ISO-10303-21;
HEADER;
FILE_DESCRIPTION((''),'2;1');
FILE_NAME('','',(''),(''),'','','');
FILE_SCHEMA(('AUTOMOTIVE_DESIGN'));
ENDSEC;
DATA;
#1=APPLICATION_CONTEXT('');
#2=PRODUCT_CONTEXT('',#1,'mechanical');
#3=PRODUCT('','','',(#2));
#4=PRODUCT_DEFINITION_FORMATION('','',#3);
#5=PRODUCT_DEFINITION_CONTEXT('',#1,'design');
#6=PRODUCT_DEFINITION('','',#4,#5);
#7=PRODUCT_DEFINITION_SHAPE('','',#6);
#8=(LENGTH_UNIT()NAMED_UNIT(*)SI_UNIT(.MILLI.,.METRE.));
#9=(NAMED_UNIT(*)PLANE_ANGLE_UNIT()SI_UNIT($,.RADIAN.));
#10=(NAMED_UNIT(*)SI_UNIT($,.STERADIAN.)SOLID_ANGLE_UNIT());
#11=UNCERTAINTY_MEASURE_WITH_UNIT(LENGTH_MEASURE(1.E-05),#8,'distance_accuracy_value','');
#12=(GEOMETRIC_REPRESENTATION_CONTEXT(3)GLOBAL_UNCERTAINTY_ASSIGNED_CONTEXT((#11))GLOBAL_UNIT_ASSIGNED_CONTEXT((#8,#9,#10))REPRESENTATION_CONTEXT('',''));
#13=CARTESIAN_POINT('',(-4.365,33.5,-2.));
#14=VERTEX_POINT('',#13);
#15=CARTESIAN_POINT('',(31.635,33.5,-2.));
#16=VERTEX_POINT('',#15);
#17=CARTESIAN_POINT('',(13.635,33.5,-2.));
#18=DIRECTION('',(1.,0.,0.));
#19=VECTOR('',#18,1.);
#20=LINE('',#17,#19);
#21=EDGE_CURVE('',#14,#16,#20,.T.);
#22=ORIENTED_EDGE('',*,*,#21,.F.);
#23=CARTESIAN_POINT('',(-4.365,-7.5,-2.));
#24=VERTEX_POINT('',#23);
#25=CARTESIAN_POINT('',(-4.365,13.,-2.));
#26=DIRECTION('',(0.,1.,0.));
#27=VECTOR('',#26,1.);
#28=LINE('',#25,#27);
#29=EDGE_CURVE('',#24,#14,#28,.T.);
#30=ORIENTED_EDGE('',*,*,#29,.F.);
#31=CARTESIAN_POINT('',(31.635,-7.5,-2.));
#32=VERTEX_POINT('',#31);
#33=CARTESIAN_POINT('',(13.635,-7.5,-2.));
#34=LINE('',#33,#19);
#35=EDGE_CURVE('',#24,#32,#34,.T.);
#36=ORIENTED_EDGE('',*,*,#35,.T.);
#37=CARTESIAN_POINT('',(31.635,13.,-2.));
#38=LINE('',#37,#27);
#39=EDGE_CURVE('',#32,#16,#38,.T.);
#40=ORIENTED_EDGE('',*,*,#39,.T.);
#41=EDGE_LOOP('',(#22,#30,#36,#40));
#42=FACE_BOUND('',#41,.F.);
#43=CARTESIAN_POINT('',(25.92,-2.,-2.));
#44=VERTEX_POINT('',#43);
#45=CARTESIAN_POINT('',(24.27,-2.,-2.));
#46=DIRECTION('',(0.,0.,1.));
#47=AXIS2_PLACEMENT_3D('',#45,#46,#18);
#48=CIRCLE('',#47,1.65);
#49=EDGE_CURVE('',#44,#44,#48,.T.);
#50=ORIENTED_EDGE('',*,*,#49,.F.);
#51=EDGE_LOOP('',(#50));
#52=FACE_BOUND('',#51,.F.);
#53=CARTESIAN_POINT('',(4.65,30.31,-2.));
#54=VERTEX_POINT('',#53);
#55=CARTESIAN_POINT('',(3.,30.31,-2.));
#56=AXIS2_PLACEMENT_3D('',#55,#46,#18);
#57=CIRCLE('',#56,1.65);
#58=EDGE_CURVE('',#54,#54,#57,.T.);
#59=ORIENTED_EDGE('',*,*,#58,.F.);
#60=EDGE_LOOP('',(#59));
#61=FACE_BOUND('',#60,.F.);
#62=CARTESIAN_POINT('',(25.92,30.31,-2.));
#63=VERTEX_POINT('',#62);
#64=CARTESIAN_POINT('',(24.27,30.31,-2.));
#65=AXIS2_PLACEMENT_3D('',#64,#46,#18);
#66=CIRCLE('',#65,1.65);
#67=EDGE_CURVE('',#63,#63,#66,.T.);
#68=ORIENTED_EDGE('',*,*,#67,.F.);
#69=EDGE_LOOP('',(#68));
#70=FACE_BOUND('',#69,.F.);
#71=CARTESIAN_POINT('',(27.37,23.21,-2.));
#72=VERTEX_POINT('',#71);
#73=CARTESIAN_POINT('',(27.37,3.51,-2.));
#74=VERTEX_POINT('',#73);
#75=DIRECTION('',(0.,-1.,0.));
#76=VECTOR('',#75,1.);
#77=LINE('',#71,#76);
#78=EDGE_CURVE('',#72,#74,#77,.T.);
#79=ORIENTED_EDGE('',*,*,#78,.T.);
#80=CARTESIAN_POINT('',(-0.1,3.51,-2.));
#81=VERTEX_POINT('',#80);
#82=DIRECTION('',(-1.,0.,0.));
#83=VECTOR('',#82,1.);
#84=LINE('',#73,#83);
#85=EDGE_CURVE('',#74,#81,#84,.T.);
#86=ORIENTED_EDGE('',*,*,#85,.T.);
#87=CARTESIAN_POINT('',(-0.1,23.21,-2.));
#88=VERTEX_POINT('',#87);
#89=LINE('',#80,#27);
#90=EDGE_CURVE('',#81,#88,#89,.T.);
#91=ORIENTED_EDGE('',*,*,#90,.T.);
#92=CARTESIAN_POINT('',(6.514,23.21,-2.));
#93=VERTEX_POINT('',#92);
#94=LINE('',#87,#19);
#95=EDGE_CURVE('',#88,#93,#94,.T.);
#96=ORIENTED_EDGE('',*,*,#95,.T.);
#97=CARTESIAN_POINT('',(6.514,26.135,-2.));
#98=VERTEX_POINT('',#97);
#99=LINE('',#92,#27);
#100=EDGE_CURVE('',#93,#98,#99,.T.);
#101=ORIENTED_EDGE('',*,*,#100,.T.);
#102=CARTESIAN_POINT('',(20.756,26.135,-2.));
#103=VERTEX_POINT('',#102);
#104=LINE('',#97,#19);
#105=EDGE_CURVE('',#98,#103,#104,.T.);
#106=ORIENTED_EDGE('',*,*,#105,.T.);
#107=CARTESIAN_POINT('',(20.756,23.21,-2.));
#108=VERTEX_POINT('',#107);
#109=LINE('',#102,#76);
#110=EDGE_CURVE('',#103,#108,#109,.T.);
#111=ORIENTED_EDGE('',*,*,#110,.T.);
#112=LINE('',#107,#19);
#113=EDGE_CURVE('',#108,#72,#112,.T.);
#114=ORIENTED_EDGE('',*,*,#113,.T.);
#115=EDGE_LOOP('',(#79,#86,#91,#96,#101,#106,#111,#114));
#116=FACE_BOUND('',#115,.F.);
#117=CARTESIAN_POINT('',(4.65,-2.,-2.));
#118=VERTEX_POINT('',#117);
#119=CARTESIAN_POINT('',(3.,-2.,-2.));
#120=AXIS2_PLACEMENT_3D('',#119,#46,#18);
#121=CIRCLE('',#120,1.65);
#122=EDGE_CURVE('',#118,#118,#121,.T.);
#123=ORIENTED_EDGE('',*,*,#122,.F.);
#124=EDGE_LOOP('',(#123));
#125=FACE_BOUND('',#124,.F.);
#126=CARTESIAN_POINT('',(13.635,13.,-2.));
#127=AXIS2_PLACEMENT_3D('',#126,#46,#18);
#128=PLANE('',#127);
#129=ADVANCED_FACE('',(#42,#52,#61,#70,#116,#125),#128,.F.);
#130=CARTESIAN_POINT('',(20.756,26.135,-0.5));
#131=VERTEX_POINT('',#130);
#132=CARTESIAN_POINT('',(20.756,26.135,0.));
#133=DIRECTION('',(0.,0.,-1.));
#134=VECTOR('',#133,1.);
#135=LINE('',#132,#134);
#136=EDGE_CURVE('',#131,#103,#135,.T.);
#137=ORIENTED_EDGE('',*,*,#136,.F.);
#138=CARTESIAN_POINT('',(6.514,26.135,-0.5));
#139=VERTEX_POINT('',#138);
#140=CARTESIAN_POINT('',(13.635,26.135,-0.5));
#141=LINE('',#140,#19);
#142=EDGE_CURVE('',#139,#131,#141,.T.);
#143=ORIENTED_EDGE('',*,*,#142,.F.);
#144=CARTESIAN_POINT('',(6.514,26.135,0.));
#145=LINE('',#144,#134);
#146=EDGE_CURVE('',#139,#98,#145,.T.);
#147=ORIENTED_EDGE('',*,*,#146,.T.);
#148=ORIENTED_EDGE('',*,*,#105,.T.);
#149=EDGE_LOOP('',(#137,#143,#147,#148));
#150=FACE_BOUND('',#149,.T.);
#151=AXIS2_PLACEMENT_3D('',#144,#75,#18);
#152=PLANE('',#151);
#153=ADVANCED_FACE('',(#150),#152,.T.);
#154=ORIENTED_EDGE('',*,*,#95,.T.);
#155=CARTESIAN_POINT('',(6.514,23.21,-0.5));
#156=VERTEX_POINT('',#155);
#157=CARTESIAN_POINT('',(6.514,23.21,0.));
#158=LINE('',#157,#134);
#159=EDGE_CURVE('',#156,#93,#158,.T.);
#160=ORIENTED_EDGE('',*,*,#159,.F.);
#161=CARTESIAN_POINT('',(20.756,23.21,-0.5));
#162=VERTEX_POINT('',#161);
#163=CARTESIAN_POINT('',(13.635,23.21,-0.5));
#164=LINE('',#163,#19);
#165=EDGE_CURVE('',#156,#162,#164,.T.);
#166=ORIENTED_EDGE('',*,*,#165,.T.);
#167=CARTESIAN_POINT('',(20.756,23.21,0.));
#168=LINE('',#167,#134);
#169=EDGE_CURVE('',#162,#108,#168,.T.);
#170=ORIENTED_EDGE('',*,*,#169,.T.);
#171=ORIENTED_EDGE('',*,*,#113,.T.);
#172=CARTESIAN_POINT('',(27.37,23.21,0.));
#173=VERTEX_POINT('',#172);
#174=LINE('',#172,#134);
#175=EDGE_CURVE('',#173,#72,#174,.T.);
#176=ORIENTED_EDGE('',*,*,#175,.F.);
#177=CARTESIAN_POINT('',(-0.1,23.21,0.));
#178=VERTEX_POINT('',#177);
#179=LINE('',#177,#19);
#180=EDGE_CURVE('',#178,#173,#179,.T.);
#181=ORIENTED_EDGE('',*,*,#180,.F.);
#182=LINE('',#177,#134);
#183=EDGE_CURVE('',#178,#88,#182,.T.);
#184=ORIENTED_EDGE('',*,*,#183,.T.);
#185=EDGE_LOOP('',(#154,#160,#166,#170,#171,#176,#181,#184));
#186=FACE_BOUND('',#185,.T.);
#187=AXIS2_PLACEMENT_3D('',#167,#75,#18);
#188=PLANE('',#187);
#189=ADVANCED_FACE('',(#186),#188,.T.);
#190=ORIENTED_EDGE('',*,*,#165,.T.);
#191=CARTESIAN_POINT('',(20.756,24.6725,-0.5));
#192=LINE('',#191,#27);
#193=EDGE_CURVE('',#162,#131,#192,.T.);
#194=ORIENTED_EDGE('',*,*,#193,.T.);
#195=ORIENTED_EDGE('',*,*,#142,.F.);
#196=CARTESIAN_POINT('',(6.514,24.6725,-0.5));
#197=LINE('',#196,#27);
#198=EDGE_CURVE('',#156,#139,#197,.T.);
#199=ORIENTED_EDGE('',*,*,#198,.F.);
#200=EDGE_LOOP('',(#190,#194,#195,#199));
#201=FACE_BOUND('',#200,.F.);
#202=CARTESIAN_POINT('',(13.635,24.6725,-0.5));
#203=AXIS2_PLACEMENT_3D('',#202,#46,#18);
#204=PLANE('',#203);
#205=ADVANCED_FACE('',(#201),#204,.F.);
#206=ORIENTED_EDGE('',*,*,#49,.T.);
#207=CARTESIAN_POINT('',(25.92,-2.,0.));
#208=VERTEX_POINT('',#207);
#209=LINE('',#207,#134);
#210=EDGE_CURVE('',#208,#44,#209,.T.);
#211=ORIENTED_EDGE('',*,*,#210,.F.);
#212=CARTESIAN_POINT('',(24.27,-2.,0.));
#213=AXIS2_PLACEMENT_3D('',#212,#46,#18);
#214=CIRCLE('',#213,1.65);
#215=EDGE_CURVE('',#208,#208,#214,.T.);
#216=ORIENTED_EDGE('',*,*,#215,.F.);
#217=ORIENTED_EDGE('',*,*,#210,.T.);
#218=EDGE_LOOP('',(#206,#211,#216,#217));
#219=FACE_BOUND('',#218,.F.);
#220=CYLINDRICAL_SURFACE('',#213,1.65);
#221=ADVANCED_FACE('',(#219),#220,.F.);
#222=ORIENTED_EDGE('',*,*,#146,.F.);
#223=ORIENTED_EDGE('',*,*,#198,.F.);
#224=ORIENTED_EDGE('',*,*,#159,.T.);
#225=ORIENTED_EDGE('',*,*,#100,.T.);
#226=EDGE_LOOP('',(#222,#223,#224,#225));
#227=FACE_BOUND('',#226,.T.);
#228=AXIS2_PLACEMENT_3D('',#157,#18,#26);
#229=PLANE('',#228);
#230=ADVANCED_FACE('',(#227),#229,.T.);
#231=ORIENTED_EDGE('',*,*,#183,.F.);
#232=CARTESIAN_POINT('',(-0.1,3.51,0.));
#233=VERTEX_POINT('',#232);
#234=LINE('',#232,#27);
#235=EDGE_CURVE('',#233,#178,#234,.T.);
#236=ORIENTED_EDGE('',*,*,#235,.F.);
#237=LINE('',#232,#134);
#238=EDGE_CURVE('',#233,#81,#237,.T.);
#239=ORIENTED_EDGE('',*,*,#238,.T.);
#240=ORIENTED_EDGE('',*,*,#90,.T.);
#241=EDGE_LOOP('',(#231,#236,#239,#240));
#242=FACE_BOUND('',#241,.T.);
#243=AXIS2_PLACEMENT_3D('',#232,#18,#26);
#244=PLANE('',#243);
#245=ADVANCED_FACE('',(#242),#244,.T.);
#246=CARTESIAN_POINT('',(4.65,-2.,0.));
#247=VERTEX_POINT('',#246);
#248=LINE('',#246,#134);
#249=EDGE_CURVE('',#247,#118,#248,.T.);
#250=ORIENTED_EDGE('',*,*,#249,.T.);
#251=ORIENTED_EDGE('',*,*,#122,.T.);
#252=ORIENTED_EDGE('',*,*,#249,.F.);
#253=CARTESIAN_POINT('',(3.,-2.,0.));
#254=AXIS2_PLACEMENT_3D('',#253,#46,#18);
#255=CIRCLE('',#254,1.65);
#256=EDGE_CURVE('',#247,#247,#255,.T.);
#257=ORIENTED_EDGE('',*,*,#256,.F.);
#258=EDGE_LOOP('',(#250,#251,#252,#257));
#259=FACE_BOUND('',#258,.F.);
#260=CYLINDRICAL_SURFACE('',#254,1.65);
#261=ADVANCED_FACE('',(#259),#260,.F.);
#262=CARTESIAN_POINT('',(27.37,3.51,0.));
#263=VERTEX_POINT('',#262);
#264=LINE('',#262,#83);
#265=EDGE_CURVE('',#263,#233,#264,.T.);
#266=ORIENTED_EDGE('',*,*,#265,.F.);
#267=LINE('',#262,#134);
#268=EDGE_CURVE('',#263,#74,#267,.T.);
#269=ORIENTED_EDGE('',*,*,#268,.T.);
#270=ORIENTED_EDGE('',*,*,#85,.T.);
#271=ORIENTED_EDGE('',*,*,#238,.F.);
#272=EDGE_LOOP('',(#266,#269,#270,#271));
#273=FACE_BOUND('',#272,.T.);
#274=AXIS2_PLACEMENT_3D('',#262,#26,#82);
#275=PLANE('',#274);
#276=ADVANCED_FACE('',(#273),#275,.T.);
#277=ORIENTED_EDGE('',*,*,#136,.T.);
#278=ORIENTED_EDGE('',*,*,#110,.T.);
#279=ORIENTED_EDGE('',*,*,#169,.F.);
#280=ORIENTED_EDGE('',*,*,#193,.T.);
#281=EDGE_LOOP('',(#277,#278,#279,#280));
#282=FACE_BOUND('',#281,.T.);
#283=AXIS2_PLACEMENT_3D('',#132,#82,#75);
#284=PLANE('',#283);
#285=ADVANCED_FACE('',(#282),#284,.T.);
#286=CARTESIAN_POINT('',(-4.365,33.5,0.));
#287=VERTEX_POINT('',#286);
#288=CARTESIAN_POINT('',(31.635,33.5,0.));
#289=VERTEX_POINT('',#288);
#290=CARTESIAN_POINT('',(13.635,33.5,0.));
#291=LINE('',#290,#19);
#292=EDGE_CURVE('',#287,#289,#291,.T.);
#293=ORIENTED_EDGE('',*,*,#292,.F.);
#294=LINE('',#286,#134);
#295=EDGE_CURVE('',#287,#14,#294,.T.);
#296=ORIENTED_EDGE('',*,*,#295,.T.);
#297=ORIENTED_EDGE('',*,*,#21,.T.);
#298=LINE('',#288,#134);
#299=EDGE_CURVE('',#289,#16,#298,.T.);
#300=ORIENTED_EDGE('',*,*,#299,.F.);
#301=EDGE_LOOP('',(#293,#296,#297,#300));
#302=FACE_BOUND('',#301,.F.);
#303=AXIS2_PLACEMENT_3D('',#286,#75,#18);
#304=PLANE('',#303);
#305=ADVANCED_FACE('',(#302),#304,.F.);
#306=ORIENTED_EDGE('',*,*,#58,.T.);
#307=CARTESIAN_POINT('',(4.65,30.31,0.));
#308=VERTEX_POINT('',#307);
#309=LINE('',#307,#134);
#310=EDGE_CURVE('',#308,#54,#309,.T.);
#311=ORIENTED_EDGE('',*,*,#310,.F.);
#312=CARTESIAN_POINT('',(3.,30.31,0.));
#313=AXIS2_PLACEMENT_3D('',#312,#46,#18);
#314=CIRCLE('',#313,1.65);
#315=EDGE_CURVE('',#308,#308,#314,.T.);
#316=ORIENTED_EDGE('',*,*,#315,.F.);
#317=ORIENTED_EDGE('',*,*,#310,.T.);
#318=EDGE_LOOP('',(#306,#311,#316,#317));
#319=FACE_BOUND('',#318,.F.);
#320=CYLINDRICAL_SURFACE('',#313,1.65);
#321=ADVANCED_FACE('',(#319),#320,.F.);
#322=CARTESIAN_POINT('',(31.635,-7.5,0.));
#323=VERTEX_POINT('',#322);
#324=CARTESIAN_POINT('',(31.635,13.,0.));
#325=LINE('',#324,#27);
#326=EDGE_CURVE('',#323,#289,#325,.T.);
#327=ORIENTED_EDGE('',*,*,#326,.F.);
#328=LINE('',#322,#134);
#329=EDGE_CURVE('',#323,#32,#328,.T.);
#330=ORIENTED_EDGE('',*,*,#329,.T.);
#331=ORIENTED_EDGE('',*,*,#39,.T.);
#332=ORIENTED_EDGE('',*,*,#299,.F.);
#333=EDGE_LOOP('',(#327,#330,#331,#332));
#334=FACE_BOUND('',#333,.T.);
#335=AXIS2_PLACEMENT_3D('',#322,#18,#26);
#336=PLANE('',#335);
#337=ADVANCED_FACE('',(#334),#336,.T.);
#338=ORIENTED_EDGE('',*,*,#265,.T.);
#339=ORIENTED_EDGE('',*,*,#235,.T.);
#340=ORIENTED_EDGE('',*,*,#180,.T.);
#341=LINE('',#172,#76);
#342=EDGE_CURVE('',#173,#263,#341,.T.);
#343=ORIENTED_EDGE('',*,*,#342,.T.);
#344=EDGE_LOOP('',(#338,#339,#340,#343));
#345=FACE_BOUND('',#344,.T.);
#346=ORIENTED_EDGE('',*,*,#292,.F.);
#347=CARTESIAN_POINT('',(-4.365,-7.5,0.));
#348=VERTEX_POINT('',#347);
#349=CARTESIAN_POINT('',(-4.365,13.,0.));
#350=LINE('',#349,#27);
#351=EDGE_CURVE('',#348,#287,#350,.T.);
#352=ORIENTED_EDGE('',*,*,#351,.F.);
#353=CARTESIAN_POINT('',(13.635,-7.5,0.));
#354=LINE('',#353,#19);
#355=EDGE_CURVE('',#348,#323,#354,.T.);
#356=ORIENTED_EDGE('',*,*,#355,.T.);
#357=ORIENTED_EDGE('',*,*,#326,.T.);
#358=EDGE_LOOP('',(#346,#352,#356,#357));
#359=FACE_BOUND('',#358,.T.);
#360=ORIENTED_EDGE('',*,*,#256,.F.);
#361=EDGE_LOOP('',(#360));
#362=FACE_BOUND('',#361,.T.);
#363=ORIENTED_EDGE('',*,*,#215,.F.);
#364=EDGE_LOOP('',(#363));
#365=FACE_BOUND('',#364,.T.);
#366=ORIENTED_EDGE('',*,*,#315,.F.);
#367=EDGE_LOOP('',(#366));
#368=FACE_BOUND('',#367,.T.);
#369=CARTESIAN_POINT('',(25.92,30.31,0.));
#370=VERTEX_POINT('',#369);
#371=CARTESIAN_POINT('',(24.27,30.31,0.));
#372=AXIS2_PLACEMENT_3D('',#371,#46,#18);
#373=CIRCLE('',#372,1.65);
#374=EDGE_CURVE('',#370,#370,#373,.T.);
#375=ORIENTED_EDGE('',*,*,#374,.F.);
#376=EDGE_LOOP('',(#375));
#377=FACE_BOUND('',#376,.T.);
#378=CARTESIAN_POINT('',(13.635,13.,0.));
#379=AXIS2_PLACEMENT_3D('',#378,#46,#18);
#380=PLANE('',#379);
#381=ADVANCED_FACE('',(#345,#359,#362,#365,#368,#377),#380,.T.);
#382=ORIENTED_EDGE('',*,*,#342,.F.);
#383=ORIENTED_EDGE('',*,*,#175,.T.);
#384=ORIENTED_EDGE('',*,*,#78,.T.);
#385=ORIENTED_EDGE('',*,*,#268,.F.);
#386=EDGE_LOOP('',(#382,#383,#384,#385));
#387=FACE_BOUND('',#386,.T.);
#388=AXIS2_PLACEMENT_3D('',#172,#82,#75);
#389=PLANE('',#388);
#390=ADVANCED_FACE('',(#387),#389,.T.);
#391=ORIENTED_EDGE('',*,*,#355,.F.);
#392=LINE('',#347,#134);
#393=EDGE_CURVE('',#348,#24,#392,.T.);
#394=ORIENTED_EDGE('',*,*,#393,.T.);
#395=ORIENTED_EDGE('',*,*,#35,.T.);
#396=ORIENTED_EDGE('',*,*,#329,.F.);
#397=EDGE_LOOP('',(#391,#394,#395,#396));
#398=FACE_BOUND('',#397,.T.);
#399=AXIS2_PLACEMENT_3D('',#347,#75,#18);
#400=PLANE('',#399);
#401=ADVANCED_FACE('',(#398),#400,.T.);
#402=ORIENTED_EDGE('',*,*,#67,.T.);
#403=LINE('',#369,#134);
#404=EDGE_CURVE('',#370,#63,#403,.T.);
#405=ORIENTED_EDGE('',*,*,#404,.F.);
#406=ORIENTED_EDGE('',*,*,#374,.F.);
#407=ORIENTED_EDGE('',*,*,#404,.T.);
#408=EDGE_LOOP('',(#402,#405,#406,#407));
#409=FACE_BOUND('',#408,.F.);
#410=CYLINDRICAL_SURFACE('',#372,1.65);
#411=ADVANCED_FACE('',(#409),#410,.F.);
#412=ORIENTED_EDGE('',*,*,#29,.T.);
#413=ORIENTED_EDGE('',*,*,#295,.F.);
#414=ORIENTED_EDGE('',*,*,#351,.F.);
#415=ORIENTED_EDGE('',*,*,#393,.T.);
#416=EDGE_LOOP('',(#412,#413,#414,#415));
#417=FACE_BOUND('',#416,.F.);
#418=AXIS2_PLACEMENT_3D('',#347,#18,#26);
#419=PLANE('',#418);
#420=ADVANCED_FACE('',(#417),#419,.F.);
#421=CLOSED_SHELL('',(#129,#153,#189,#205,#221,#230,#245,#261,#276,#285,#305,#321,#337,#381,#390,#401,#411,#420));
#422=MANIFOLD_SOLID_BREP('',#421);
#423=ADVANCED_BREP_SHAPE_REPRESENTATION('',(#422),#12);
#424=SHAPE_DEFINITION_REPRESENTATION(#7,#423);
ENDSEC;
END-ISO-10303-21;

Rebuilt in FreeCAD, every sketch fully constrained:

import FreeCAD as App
import Part
import Sketcher
from FreeCAD import Vector
Q = App.Units.Quantity


def add_polygon(sketch, points):
    """Adds a closed chain of lines whose ends are joined by coincident constraints."""
    first, n = sketch.GeometryCount, len(points)
    for a, b in zip(points, points[1:] + points[:1]):
        sketch.addGeometry(Part.LineSegment(App.Vector(*a, 0), App.Vector(*b, 0)), False)
    for i in range(n):
        sketch.addConstraint(Sketcher.Constraint("Coincident", first + i, 2, first + (i + 1) % n, 1))

doc = App.newDocument("Part")
body = doc.addObject("PartDesign::Body", "Body")

# Sketch on XY plane
sketch1 = body.newObject("Sketcher::SketchObject", "Sketch")
sketch1.AttachmentSupport = (doc.getObject("XY_Plane"), [""])
sketch1.MapMode = "FlatFace"
add_polygon(sketch1, [(-4.4, 33.5), (-4.4, -7.5), (31.6, -7.5), (31.6, 33.5)])  # lines 0-3
sketch1.addGeometry(Part.Circle(Vector(3, -2, 0), Vector(0, 0, 1), 1.6), False)  # 4
sketch1.addGeometry(Part.Circle(Vector(24.3, -2, 0), Vector(0, 0, 1), 1.6), False)  # 5
sketch1.addGeometry(Part.Circle(Vector(3, 30.3, 0), Vector(0, 0, 1), 1.6), False)  # 6
add_polygon(sketch1, [(20.8, 23.2), (27.4, 23.2), (27.4, 3.5), (-0.1, 3.5), (-0.1, 23.2), (6.5, 23.2), (6.5, 26.1), (20.8, 26.1)])  # lines 7-14
sketch1.addGeometry(Part.Circle(Vector(24.3, 30.3, 0), Vector(0, 0, 1), 1.6), False)  # 15
sketch1.addConstraint(Sketcher.Constraint("Vertical", 0))
sketch1.addConstraint(Sketcher.Constraint("Horizontal", 1))
sketch1.addConstraint(Sketcher.Constraint("Vertical", 2))
sketch1.addConstraint(Sketcher.Constraint("Horizontal", 3))
sketch1.addConstraint(Sketcher.Constraint("Horizontal", 7))
sketch1.addConstraint(Sketcher.Constraint("Vertical", 8))
sketch1.addConstraint(Sketcher.Constraint("Horizontal", 9))
sketch1.addConstraint(Sketcher.Constraint("Vertical", 10))
sketch1.addConstraint(Sketcher.Constraint("Horizontal", 11))
sketch1.addConstraint(Sketcher.Constraint("Vertical", 12))
sketch1.addConstraint(Sketcher.Constraint("Horizontal", 13))
sketch1.addConstraint(Sketcher.Constraint("Vertical", 14))
sketch1.addConstraint(Sketcher.Constraint("Equal", 4, 5))
sketch1.addConstraint(Sketcher.Constraint("Equal", 5, 6))
sketch1.addConstraint(Sketcher.Constraint("Equal", 6, 15))
sketch1.addConstraint(Sketcher.Constraint("Horizontal", 4, 3, 5, 3))
sketch1.addConstraint(Sketcher.Constraint("Horizontal", 6, 3, 15, 3))
sketch1.addConstraint(Sketcher.Constraint("Horizontal", 7, 2, 10, 2))
sketch1.addConstraint(Sketcher.Constraint("Vertical", 4, 3, 6, 3))
sketch1.addConstraint(Sketcher.Constraint("Vertical", 5, 3, 15, 3))
sketch1.addConstraint(Sketcher.Constraint("Equal", 7, 11))
sketch1.addConstraint(Sketcher.Constraint("Diameter", 4, Q("3.3 mm")))
sketch1.addConstraint(Sketcher.Constraint("DistanceX", 1, 1, 1, 2, Q("36 mm")))
sketch1.addConstraint(Sketcher.Constraint("DistanceY", 0, 2, 0, 1, Q("41 mm")))
sketch1.addConstraint(Sketcher.Constraint("DistanceY", 8, 2, 8, 1, Q("19.7 mm")))
sketch1.addConstraint(Sketcher.Constraint("DistanceX", -1, 1, 4, 3, Q("3 mm")))
sketch1.addConstraint(Sketcher.Constraint("DistanceY", 4, 3, -1, 1, Q("2 mm")))
sketch1.addConstraint(Sketcher.Constraint("DistanceX", 9, 2, 9, 1, Q("27.47 mm")))
sketch1.addConstraint(Sketcher.Constraint("DistanceY", 0, 2, -1, 1, Q("7.5 mm")))
sketch1.addConstraint(Sketcher.Constraint("DistanceX", 9, 2, -1, 1, Q("0.1 mm")))
sketch1.addConstraint(Sketcher.Constraint("DistanceX", 15, 3, 7, 2, Q("3.1 mm")))
sketch1.addConstraint(Sketcher.Constraint("DistanceY", 7, 2, 15, 3, Q("7.1 mm")))
sketch1.addConstraint(Sketcher.Constraint("DistanceX", 7, 1, 7, 2, Q("6.614 mm")))
sketch1.addConstraint(Sketcher.Constraint("DistanceY", 12, 1, 12, 2, Q("2.925 mm")))
sketch1.addConstraint(Sketcher.Constraint("DistanceY", -1, 1, 6, 3, Q("30.31 mm")))
sketch1.addConstraint(Sketcher.Constraint("DistanceX", 0, 2, -1, 1, Q("4.365 mm")))
pad1 = body.newObject("PartDesign::Pad", "Pad")
pad1.Profile = sketch1
pad1.Length = 2
pad1.Reversed = True
body2 = doc.addObject("PartDesign::Body", "Body001")

# Sketch on XY plane
sketch2 = body2.newObject("Sketcher::SketchObject", "Sketch001")
sketch2.AttachmentSupport = (doc.getObject("XY_Plane001"), [""])
sketch2.MapMode = "FlatFace"
add_polygon(sketch2, [(6.5, 26.1), (6.5, 23.2), (20.8, 23.2), (20.8, 26.1)])  # lines 0-3
sketch2.addConstraint(Sketcher.Constraint("Vertical", 0))
sketch2.addConstraint(Sketcher.Constraint("Horizontal", 1))
sketch2.addConstraint(Sketcher.Constraint("Vertical", 2))
sketch2.addConstraint(Sketcher.Constraint("Horizontal", 3))
sketch2.addConstraint(Sketcher.Constraint("DistanceX", 1, 1, 1, 2, Q("14.242 mm")))
sketch2.addConstraint(Sketcher.Constraint("DistanceY", 0, 2, 0, 1, Q("2.925 mm")))
sketch2.addConstraint(Sketcher.Constraint("DistanceY", -1, 1, 0, 2, Q("23.21 mm")))
sketch2.addConstraint(Sketcher.Constraint("DistanceX", -1, 1, 0, 2, Q("6.514 mm")))
pad2 = body2.newObject("PartDesign::Pad", "Pad001")
pad2.Profile = sketch2
pad2.Length = 0.5
pad2.Reversed = True
doc.recompute()

boolean = body2.newObject("PartDesign::Boolean", "Boolean")
boolean.Type = "Fuse"
boolean.addObjects([body])

doc.recompute()
